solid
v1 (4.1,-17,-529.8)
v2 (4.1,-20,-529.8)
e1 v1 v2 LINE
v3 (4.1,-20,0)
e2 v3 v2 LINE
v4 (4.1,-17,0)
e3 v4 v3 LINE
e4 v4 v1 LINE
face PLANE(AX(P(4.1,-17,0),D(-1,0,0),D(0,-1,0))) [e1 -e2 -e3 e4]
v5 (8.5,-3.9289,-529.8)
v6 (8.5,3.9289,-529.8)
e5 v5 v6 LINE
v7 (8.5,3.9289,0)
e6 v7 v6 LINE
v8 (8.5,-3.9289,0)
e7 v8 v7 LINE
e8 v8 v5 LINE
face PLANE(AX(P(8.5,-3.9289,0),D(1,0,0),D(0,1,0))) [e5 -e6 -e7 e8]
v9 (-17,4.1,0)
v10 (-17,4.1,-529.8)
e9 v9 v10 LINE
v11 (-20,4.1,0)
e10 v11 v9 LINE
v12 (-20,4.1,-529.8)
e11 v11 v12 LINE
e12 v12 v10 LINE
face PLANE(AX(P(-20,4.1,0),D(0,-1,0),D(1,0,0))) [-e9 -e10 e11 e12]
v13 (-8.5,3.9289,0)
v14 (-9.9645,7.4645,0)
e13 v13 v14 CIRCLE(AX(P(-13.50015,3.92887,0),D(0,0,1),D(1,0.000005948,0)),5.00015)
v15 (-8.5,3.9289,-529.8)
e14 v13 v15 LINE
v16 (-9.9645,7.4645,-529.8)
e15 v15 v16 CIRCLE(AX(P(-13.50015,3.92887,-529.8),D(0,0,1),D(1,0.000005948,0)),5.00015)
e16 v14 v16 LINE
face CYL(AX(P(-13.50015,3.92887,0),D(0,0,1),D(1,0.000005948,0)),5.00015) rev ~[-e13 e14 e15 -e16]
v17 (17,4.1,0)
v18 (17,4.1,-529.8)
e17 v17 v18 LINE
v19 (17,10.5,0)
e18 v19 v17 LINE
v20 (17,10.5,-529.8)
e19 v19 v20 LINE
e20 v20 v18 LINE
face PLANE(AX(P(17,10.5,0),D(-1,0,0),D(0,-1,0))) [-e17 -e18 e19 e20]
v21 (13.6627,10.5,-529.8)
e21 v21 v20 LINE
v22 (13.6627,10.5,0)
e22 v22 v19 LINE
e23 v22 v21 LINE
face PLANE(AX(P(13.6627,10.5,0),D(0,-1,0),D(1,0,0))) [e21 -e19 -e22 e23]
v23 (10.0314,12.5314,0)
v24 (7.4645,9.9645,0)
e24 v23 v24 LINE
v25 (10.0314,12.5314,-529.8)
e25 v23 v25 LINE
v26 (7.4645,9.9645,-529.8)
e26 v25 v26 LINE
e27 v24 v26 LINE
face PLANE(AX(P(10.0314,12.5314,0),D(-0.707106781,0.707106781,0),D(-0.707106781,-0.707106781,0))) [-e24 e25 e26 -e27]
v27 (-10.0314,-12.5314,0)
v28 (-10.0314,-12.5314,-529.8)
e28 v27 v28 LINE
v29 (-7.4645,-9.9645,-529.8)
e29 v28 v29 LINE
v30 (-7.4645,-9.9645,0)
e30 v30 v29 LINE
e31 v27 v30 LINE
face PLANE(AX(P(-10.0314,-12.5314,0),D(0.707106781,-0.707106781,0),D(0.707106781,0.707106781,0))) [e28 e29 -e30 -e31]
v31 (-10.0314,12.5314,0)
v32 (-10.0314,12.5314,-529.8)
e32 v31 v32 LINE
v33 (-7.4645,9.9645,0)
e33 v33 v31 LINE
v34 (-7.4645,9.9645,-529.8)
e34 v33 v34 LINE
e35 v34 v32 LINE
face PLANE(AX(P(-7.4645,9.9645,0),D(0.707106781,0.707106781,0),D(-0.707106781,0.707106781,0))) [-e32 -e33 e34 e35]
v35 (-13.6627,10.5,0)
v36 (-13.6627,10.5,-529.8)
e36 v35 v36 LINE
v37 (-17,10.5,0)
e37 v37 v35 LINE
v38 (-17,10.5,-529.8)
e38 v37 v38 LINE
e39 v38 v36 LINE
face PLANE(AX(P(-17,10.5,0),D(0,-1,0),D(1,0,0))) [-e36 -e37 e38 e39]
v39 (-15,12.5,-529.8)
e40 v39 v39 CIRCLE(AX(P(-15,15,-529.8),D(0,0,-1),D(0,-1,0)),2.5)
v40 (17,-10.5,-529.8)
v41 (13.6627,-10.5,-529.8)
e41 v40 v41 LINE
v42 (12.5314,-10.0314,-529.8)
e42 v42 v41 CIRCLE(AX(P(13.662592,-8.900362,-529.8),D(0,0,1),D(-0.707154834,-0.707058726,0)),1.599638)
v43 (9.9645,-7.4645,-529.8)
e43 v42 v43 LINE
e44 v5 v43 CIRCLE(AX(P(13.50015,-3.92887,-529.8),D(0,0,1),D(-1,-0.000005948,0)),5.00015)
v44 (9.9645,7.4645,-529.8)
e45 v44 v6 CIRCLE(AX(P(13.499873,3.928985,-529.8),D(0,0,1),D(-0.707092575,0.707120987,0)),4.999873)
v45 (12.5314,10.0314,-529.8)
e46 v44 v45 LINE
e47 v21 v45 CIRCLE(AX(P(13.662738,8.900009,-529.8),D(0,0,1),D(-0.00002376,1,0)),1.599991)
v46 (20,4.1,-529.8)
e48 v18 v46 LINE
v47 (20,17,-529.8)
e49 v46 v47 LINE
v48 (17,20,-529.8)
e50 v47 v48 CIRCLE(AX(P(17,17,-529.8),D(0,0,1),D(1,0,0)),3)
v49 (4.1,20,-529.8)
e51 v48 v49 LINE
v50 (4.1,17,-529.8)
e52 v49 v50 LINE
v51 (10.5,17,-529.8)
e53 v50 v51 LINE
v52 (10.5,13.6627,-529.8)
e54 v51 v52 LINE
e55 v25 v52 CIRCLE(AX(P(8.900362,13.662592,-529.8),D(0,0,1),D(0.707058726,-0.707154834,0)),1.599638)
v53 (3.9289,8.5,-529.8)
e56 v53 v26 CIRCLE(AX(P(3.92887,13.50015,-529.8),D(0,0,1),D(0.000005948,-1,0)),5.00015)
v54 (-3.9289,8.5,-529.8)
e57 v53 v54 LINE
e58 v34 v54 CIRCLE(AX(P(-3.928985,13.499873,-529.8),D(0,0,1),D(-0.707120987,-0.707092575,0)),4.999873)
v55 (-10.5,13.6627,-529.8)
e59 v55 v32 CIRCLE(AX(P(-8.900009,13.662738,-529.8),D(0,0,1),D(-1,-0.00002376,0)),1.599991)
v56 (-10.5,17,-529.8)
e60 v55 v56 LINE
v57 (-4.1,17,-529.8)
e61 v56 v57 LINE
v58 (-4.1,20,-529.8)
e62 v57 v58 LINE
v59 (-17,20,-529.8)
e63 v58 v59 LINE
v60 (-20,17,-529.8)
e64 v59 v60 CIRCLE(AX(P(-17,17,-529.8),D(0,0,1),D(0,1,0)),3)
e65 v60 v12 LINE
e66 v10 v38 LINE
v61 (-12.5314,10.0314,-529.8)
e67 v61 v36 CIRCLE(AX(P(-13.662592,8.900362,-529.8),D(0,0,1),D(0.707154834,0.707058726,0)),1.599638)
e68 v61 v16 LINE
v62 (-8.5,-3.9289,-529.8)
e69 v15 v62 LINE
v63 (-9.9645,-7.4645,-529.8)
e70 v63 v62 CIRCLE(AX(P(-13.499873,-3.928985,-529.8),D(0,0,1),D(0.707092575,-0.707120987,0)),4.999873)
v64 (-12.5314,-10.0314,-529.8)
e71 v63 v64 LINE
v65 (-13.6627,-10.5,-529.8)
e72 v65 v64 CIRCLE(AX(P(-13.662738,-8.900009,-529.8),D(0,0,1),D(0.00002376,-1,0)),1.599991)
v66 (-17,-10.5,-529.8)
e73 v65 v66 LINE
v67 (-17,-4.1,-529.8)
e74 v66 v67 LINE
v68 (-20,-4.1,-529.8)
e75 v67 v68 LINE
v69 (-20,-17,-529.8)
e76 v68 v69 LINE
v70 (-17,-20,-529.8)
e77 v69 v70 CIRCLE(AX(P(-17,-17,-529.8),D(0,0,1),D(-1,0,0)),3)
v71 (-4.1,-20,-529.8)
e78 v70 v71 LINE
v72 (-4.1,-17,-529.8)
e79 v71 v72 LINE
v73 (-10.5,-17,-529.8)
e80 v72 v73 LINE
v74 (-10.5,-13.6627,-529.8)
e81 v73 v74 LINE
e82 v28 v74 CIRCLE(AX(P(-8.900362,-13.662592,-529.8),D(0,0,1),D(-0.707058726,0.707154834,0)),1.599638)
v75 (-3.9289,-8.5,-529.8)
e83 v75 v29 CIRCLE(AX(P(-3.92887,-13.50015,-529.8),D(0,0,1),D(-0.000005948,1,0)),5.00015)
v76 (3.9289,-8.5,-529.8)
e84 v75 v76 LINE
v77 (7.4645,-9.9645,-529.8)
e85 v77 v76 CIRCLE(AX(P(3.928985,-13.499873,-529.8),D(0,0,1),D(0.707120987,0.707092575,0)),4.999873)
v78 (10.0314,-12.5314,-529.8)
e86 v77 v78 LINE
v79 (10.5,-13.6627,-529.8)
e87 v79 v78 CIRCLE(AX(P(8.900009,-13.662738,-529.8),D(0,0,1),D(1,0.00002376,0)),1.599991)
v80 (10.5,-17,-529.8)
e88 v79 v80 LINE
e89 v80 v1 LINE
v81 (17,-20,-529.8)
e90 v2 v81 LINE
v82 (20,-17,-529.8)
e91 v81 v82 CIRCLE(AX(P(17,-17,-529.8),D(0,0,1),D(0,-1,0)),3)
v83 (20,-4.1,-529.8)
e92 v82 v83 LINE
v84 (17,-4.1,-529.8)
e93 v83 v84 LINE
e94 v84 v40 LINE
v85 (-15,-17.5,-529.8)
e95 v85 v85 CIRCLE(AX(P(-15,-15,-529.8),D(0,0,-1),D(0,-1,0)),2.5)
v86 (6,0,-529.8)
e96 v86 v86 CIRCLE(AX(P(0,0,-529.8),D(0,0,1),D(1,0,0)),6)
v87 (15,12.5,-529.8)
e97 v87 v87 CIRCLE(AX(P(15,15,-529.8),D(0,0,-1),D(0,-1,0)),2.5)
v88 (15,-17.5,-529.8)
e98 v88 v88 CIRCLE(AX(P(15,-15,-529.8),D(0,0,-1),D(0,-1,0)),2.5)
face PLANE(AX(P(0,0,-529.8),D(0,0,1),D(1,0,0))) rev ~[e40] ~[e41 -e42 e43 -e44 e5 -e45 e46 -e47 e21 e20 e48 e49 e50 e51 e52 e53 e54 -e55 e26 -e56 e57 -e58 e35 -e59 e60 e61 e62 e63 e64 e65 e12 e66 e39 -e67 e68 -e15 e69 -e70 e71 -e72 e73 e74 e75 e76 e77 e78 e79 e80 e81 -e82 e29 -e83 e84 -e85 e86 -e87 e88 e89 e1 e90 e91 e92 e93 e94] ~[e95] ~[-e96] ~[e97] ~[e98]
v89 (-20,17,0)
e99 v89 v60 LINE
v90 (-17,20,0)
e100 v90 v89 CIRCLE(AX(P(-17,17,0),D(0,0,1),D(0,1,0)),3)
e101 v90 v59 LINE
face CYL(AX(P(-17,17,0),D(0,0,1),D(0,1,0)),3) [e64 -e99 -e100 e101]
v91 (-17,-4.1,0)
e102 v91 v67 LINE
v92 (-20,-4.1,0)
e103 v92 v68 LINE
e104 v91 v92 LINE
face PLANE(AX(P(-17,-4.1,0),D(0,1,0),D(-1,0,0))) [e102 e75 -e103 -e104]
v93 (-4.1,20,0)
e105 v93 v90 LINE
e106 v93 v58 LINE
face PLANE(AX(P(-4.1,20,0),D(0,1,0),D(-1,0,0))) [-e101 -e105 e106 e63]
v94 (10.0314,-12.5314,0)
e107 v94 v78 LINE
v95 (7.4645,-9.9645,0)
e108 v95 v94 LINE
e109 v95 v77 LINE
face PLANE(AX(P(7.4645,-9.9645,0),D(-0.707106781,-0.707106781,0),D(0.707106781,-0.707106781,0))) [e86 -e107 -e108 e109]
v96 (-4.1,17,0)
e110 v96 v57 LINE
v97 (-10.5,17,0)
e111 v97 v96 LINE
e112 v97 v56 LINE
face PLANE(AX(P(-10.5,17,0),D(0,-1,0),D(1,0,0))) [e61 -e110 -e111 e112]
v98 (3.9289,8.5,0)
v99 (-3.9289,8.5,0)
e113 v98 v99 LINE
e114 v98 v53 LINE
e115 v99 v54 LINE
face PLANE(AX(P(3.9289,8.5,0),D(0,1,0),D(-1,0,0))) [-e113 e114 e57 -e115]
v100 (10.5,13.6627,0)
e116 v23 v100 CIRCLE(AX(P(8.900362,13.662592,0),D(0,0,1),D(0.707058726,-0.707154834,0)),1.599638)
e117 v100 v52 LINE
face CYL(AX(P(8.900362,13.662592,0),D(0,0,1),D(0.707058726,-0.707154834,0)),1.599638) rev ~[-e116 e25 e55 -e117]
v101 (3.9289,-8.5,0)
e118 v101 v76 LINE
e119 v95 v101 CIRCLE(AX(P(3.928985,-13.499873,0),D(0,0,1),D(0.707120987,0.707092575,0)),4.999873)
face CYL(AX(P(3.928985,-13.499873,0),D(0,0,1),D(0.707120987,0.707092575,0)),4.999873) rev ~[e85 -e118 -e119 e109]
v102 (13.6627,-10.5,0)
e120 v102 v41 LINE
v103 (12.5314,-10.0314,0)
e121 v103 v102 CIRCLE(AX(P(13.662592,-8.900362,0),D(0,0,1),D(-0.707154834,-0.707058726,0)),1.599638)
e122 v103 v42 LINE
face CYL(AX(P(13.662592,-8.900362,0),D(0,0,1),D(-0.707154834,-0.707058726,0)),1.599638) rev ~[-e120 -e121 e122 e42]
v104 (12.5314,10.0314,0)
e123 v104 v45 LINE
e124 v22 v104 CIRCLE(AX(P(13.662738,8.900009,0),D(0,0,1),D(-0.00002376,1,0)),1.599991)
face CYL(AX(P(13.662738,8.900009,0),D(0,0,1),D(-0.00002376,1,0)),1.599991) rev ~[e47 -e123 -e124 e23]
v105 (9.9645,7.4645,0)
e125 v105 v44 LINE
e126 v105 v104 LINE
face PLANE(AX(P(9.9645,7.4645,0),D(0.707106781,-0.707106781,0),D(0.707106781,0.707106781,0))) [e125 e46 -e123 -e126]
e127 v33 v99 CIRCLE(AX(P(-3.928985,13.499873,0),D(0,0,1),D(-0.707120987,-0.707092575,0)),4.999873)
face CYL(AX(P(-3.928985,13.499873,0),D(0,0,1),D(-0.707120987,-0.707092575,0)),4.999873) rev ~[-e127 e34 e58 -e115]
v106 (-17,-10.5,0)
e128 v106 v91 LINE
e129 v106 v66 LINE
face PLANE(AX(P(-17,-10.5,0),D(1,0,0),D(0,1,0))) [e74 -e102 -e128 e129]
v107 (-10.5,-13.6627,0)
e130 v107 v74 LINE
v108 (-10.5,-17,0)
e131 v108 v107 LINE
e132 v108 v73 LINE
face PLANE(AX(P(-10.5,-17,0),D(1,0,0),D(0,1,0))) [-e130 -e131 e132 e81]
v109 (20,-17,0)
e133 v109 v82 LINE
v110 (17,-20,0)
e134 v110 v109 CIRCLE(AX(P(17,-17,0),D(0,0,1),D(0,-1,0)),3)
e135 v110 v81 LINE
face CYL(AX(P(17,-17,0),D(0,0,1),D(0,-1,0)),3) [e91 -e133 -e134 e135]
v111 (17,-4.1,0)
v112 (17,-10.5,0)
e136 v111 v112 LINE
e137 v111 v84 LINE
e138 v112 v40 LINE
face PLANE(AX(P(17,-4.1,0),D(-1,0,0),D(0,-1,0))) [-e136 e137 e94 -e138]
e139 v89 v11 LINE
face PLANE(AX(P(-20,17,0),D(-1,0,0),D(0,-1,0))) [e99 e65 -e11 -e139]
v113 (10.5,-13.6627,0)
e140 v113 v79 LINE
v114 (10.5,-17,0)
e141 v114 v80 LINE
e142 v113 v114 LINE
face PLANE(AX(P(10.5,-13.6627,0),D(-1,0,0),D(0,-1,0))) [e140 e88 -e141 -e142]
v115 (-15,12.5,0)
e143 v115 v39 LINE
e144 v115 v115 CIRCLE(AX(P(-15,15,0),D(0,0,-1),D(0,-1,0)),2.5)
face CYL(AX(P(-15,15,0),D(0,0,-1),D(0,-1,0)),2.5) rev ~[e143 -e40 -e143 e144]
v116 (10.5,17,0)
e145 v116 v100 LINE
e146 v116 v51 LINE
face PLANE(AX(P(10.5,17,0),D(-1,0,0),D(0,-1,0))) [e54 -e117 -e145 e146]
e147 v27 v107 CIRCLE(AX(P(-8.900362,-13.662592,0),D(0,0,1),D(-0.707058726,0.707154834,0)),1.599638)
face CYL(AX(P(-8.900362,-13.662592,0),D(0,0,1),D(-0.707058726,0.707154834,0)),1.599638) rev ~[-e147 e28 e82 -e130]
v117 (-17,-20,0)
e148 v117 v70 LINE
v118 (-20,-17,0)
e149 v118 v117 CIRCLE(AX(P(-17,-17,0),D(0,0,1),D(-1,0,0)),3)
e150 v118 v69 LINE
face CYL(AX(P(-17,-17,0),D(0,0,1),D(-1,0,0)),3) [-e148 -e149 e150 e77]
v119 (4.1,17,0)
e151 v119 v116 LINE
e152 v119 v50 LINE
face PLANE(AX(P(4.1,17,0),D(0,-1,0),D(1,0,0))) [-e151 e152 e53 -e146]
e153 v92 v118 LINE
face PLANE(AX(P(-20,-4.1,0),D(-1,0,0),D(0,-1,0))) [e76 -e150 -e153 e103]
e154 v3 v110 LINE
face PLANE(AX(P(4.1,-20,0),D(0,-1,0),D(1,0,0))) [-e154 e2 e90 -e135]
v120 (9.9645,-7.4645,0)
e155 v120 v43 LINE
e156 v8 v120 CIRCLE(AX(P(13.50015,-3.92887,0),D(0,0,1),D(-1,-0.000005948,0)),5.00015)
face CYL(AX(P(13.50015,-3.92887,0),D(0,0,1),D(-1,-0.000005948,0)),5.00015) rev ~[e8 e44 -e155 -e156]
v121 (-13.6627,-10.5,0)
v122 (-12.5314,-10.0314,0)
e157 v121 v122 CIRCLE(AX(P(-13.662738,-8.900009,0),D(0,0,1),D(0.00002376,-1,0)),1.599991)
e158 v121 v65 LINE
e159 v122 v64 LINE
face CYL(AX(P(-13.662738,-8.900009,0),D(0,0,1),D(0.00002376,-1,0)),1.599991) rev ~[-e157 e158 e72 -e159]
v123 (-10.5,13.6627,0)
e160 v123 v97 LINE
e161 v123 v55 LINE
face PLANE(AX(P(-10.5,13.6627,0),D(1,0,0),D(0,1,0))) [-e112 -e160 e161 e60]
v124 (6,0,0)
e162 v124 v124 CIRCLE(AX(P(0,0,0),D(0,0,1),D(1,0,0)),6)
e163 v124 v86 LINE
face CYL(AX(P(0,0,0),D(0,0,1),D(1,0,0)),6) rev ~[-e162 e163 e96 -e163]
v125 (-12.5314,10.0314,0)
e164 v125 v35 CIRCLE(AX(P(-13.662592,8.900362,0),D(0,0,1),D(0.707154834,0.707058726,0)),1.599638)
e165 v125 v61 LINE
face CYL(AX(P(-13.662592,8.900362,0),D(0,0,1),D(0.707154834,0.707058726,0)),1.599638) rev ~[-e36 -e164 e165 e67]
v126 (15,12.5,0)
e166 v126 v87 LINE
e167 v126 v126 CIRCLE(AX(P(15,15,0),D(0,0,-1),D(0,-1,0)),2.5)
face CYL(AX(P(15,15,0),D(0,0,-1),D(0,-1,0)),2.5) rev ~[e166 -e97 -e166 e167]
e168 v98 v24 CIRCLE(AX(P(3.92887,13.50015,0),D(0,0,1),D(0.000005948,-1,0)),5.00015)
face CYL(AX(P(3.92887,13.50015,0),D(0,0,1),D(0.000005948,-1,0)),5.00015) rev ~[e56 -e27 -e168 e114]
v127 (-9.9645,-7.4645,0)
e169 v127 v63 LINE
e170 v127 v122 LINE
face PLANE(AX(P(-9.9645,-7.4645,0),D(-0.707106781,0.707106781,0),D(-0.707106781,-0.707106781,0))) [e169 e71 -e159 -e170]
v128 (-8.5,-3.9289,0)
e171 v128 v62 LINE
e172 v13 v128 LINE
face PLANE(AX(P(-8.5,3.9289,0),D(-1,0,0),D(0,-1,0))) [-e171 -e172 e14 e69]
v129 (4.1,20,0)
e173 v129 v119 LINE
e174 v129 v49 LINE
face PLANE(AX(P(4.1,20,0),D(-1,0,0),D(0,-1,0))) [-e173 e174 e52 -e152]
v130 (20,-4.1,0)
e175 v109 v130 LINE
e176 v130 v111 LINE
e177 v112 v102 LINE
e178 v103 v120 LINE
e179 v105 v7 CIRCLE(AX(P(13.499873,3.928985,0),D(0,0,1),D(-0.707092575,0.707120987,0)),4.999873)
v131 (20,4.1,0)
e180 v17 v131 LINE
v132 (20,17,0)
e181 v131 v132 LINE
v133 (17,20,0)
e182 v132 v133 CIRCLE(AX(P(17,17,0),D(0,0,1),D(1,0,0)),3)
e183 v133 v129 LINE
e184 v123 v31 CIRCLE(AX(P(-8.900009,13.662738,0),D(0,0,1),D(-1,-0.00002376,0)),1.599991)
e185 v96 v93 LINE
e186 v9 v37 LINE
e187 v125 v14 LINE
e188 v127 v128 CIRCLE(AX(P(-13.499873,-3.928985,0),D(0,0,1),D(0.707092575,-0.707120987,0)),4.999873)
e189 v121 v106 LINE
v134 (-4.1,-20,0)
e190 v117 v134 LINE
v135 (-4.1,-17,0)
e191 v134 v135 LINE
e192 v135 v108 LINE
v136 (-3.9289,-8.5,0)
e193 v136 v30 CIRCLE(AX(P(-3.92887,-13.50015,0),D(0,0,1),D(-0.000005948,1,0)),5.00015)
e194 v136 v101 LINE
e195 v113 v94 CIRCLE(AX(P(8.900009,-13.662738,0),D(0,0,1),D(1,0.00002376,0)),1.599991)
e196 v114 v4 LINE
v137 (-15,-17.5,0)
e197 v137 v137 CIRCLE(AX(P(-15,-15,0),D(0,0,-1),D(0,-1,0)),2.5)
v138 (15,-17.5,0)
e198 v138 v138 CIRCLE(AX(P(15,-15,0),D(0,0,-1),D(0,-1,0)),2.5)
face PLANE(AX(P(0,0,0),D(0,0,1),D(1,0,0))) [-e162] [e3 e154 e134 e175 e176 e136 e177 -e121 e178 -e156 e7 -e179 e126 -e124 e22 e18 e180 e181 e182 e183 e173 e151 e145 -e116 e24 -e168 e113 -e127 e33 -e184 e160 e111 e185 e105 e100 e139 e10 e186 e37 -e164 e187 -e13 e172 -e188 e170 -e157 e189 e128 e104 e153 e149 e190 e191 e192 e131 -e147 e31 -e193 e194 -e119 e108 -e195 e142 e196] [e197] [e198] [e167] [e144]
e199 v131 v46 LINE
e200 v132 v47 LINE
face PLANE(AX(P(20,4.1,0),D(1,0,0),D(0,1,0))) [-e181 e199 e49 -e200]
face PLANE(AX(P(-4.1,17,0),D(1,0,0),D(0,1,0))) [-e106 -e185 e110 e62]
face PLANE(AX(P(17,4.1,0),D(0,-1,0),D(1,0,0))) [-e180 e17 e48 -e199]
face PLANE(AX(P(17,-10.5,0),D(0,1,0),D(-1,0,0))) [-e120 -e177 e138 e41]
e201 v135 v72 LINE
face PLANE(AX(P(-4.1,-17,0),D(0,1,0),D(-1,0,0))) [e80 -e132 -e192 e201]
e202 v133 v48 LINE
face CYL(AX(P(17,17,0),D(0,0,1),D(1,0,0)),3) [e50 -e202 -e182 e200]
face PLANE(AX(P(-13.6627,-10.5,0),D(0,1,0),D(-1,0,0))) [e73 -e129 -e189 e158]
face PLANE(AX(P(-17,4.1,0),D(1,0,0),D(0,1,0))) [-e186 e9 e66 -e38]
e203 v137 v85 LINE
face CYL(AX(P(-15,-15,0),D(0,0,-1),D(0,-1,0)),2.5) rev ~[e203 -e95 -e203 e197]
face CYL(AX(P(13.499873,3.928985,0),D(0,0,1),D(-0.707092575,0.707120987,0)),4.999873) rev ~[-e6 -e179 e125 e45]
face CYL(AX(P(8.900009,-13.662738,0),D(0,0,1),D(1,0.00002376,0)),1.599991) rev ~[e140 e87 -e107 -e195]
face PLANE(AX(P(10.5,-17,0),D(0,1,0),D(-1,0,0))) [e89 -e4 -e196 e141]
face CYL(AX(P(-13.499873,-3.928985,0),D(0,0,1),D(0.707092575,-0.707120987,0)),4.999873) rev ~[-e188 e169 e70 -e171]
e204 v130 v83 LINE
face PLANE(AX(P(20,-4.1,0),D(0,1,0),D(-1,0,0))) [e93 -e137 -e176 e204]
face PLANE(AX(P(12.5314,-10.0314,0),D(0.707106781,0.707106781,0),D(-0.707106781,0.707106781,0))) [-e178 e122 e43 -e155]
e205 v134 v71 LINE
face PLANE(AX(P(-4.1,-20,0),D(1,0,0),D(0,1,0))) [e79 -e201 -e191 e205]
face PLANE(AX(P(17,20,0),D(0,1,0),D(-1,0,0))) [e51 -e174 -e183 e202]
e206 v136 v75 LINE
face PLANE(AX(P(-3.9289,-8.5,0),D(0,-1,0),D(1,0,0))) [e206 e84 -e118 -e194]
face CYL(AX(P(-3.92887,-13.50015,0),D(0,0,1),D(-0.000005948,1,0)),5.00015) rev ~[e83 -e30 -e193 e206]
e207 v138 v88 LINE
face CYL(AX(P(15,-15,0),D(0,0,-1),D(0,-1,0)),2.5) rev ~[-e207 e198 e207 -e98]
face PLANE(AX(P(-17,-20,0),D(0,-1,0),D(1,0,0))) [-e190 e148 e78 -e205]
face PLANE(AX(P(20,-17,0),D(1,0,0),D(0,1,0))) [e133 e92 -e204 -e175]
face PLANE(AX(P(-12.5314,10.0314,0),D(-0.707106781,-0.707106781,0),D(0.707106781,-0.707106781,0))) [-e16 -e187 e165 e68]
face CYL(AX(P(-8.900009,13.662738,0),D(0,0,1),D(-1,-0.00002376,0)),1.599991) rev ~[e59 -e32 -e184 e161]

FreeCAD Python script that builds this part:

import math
import FreeCAD as App
import Part
import Sketcher

V = App.Vector
Q = App.Units.Quantity

doc = App.newDocument("Part")
params = doc.addObject("Spreadsheet::Sheet", "Params")
for row, (alias, value) in enumerate([
    ("sketch1_diameter", "12 mm"),
    ("sketch1_radius", "3 mm"),
    ("sketch1_radius2", "5 mm"),
    ("sketch1_width", "12.9 mm"),
    ("sketch1_width2", "6.4 mm"),
    ("pad1_length", "529.8 mm"),
    ("sketch2_diameter", "5 mm"),
    ("hole_diameter", "5 mm"),
    ("hole_depth", "6000 mm"),
    ("sketch3_diameter", "5 mm"),
    ("hole2_diameter", "5 mm"),
    ("hole2_depth", "6000 mm"),
    ("sketch4_diameter", "5 mm"),
    ("hole3_diameter", "5 mm"),
    ("hole3_depth", "6000 mm"),
    ("sketch5_diameter", "5 mm"),
    ("hole4_diameter", "5 mm"),
    ("hole4_depth", "6000 mm"),
], start=1):
    params.set(f"A{row}", alias)
    params.set(f"B{row}", "=" + value)
    params.setAlias(f"B{row}", alias)

body = doc.addObject("PartDesign::Body", "Body")

# Sketch on XY plane
sketch1 = body.newObject("Sketcher::SketchObject", "Sketch")
sketch1.AttachmentSupport = (doc.getObject("XY_Plane"), [""])
sketch1.MapMode = "FlatFace"
sketch1.addGeometry(Part.LineSegment(V(-20, -4.1, 0), V(-20, -17, 0)), False)
sketch1.addGeometry(Part.ArcOfCircle(Part.Circle(V(-17, -17, 0), V(0, 0, 1), 3), math.radians(180), math.radians(270)), False)
sketch1.addGeometry(Part.LineSegment(V(-17, -20, 0), V(-4.1, -20, 0)), False)
sketch1.addGeometry(Part.LineSegment(V(-4.1, -20, 0), V(-4.1, -17, 0)), False)
sketch1.addGeometry(Part.LineSegment(V(-4.1, -17, 0), V(-10.5, -17, 0)), False)
sketch1.addGeometry(Part.LineSegment(V(-10.5, -17, 0), V(-10.5, -13.7, 0)), False)
sketch1.addGeometry(Part.ArcOfCircle(Part.Circle(V(-8.9, -13.7, 0), V(0, 0, 1), 1.6), math.radians(135), math.radians(180)), False)
sketch1.addGeometry(Part.LineSegment(V(-10, -12.5, 0), V(-7.5, -10, 0)), False)
sketch1.addGeometry(Part.ArcOfCircle(Part.Circle(V(-3.9, -13.5, 0), V(0, 0, 1), 5), math.radians(90), math.radians(135)), False)
sketch1.addGeometry(Part.LineSegment(V(-3.9, -8.5, 0), V(3.9, -8.5, 0)), False)
sketch1.addGeometry(Part.ArcOfCircle(Part.Circle(V(3.9, -13.5, 0), V(0, 0, 1), 5), math.radians(45), math.radians(90)), False)
sketch1.addGeometry(Part.LineSegment(V(7.5, -10, 0), V(10, -12.5, 0)), False)
sketch1.addGeometry(Part.ArcOfCircle(Part.Circle(V(8.9, -13.7, 0), V(0, 0, 1), 1.6), math.radians(0), math.radians(45)), False)
sketch1.addGeometry(Part.LineSegment(V(10.5, -13.7, 0), V(10.5, -17, 0)), False)
sketch1.addGeometry(Part.LineSegment(V(10.5, -17, 0), V(4.1, -17, 0)), False)
sketch1.addGeometry(Part.LineSegment(V(4.1, -17, 0), V(4.1, -20, 0)), False)
sketch1.addGeometry(Part.LineSegment(V(4.1, -20, 0), V(17, -20, 0)), False)
sketch1.addGeometry(Part.ArcOfCircle(Part.Circle(V(17, -17, 0), V(0, 0, 1), 3), math.radians(-90), math.radians(0)), False)
sketch1.addGeometry(Part.LineSegment(V(20, -17, 0), V(20, -4.1, 0)), False)
sketch1.addGeometry(Part.LineSegment(V(20, -4.1, 0), V(17, -4.1, 0)), False)
sketch1.addGeometry(Part.LineSegment(V(17, -4.1, 0), V(17, -10.5, 0)), False)
sketch1.addGeometry(Part.LineSegment(V(17, -10.5, 0), V(13.7, -10.5, 0)), False)
sketch1.addGeometry(Part.ArcOfCircle(Part.Circle(V(13.7, -8.9, 0), V(0, 0, 1), 1.6), math.radians(-135), math.radians(-90)), False)
sketch1.addGeometry(Part.LineSegment(V(12.5, -10, 0), V(10, -7.5, 0)), False)
sketch1.addGeometry(Part.ArcOfCircle(Part.Circle(V(13.5, -3.9, 0), V(0, 0, 1), 5), math.radians(180), math.radians(225)), False)
sketch1.addGeometry(Part.LineSegment(V(8.5, -3.9, 0), V(8.5, 3.9, 0)), False)
sketch1.addGeometry(Part.ArcOfCircle(Part.Circle(V(13.5, 3.9, 0), V(0, 0, 1), 5), math.radians(135), math.radians(180)), False)
sketch1.addGeometry(Part.LineSegment(V(10, 7.5, 0), V(12.5, 10, 0)), False)
sketch1.addGeometry(Part.ArcOfCircle(Part.Circle(V(13.7, 8.9, 0), V(0, 0, 1), 1.6), math.radians(90), math.radians(135)), False)
sketch1.addGeometry(Part.LineSegment(V(13.7, 10.5, 0), V(17, 10.5, 0)), False)
sketch1.addGeometry(Part.LineSegment(V(17, 10.5, 0), V(17, 4.1, 0)), False)
sketch1.addGeometry(Part.LineSegment(V(17, 4.1, 0), V(20, 4.1, 0)), False)
sketch1.addGeometry(Part.LineSegment(V(20, 4.1, 0), V(20, 17, 0)), False)
sketch1.addGeometry(Part.ArcOfCircle(Part.Circle(V(17, 17, 0), V(0, 0, 1), 3), math.radians(0), math.radians(90)), False)
sketch1.addGeometry(Part.LineSegment(V(17, 20, 0), V(4.1, 20, 0)), False)
sketch1.addGeometry(Part.LineSegment(V(4.1, 20, 0), V(4.1, 17, 0)), False)
sketch1.addGeometry(Part.LineSegment(V(4.1, 17, 0), V(10.5, 17, 0)), False)
sketch1.addGeometry(Part.LineSegment(V(10.5, 17, 0), V(10.5, 13.7, 0)), False)
sketch1.addGeometry(Part.ArcOfCircle(Part.Circle(V(8.9, 13.7, 0), V(0, 0, 1), 1.6), math.radians(-45), math.radians(0)), False)
sketch1.addGeometry(Part.LineSegment(V(10, 12.5, 0), V(7.5, 10, 0)), False)
sketch1.addGeometry(Part.ArcOfCircle(Part.Circle(V(3.9, 13.5, 0), V(0, 0, 1), 5), math.radians(-90), math.radians(-45)), False)
sketch1.addGeometry(Part.LineSegment(V(3.9, 8.5, 0), V(-3.9, 8.5, 0)), False)
sketch1.addGeometry(Part.ArcOfCircle(Part.Circle(V(-3.9, 13.5, 0), V(0, 0, 1), 5), math.radians(-135), math.radians(-90)), False)
sketch1.addGeometry(Part.LineSegment(V(-7.5, 10, 0), V(-10, 12.5, 0)), False)
sketch1.addGeometry(Part.ArcOfCircle(Part.Circle(V(-8.9, 13.7, 0), V(0, 0, 1), 1.6), math.radians(180), math.radians(225)), False)
sketch1.addGeometry(Part.LineSegment(V(-10.5, 13.7, 0), V(-10.5, 17, 0)), False)
sketch1.addGeometry(Part.LineSegment(V(-10.5, 17, 0), V(-4.1, 17, 0)), False)
sketch1.addGeometry(Part.LineSegment(V(-4.1, 17, 0), V(-4.1, 20, 0)), False)
sketch1.addGeometry(Part.LineSegment(V(-4.1, 20, 0), V(-17, 20, 0)), False)
sketch1.addGeometry(Part.ArcOfCircle(Part.Circle(V(-17, 17, 0), V(0, 0, 1), 3), math.radians(90), math.radians(180)), False)
sketch1.addGeometry(Part.LineSegment(V(-20, 17, 0), V(-20, 4.1, 0)), False)
sketch1.addGeometry(Part.LineSegment(V(-20, 4.1, 0), V(-17, 4.1, 0)), False)
sketch1.addGeometry(Part.LineSegment(V(-17, 4.1, 0), V(-17, 10.5, 0)), False)
sketch1.addGeometry(Part.LineSegment(V(-17, 10.5, 0), V(-13.7, 10.5, 0)), False)
sketch1.addGeometry(Part.ArcOfCircle(Part.Circle(V(-13.7, 8.9, 0), V(0, 0, 1), 1.6), math.radians(45), math.radians(90)), False)
sketch1.addGeometry(Part.LineSegment(V(-12.5, 10, 0), V(-10, 7.5, 0)), False)
sketch1.addGeometry(Part.ArcOfCircle(Part.Circle(V(-13.5, 3.9, 0), V(0, 0, 1), 5), math.radians(0), math.radians(45)), False)
sketch1.addGeometry(Part.LineSegment(V(-8.5, 3.9, 0), V(-8.5, -3.9, 0)), False)
sketch1.addGeometry(Part.ArcOfCircle(Part.Circle(V(-13.5, -3.9, 0), V(0, 0, 1), 5), math.radians(-45), math.radians(0)), False)
sketch1.addGeometry(Part.LineSegment(V(-10, -7.5, 0), V(-12.5, -10, 0)), False)
sketch1.addGeometry(Part.ArcOfCircle(Part.Circle(V(-13.7, -8.9, 0), V(0, 0, 1), 1.6), math.radians(-90), math.radians(-45)), False)
sketch1.addGeometry(Part.LineSegment(V(-13.7, -10.5, 0), V(-17, -10.5, 0)), False)
sketch1.addGeometry(Part.LineSegment(V(-17, -10.5, 0), V(-17, -4.1, 0)), False)
sketch1.addGeometry(Part.LineSegment(V(-17, -4.1, 0), V(-20, -4.1, 0)), False)
sketch1.addGeometry(Part.Circle(V(0, 0, 0), V(0, 0, 1), 6), False)
sketch1.addConstraint(Sketcher.Constraint("Tangent", 0, 2, 1, 1))
sketch1.addConstraint(Sketcher.Constraint("Tangent", 1, 2, 2, 1))
sketch1.addConstraint(Sketcher.Constraint("Coincident", 2, 2, 3, 1))
sketch1.addConstraint(Sketcher.Constraint("Coincident", 3, 2, 4, 1))
sketch1.addConstraint(Sketcher.Constraint("Coincident", 4, 2, 5, 1))
sketch1.addConstraint(Sketcher.Constraint("Tangent", 5, 2, 6, 2))
sketch1.addConstraint(Sketcher.Constraint("Tangent", 6, 1, 7, 1))
sketch1.addConstraint(Sketcher.Constraint("Tangent", 7, 2, 8, 2))
sketch1.addConstraint(Sketcher.Constraint("Tangent", 8, 1, 9, 1))
sketch1.addConstraint(Sketcher.Constraint("Tangent", 9, 2, 10, 2))
sketch1.addConstraint(Sketcher.Constraint("Tangent", 10, 1, 11, 1))
sketch1.addConstraint(Sketcher.Constraint("Tangent", 11, 2, 12, 2))
sketch1.addConstraint(Sketcher.Constraint("Tangent", 12, 1, 13, 1))
sketch1.addConstraint(Sketcher.Constraint("Coincident", 13, 2, 14, 1))
sketch1.addConstraint(Sketcher.Constraint("Coincident", 14, 2, 15, 1))
sketch1.addConstraint(Sketcher.Constraint("Coincident", 15, 2, 16, 1))
sketch1.addConstraint(Sketcher.Constraint("Tangent", 16, 2, 17, 1))
sketch1.addConstraint(Sketcher.Constraint("Tangent", 17, 2, 18, 1))
sketch1.addConstraint(Sketcher.Constraint("Coincident", 18, 2, 19, 1))
sketch1.addConstraint(Sketcher.Constraint("Coincident", 19, 2, 20, 1))
sketch1.addConstraint(Sketcher.Constraint("Coincident", 20, 2, 21, 1))
sketch1.addConstraint(Sketcher.Constraint("Tangent", 21, 2, 22, 2))
sketch1.addConstraint(Sketcher.Constraint("Tangent", 22, 1, 23, 1))
sketch1.addConstraint(Sketcher.Constraint("Tangent", 23, 2, 24, 2))
sketch1.addConstraint(Sketcher.Constraint("Tangent", 24, 1, 25, 1))
sketch1.addConstraint(Sketcher.Constraint("Tangent", 25, 2, 26, 2))
sketch1.addConstraint(Sketcher.Constraint("Tangent", 26, 1, 27, 1))
sketch1.addConstraint(Sketcher.Constraint("Tangent", 27, 2, 28, 2))
sketch1.addConstraint(Sketcher.Constraint("Tangent", 28, 1, 29, 1))
sketch1.addConstraint(Sketcher.Constraint("Coincident", 29, 2, 30, 1))
sketch1.addConstraint(Sketcher.Constraint("Coincident", 30, 2, 31, 1))
sketch1.addConstraint(Sketcher.Constraint("Coincident", 31, 2, 32, 1))
sketch1.addConstraint(Sketcher.Constraint("Tangent", 32, 2, 33, 1))
sketch1.addConstraint(Sketcher.Constraint("Tangent", 33, 2, 34, 1))
sketch1.addConstraint(Sketcher.Constraint("Coincident", 34, 2, 35, 1))
sketch1.addConstraint(Sketcher.Constraint("Coincident", 35, 2, 36, 1))
sketch1.addConstraint(Sketcher.Constraint("Coincident", 36, 2, 37, 1))
sketch1.addConstraint(Sketcher.Constraint("Tangent", 37, 2, 38, 2))
sketch1.addConstraint(Sketcher.Constraint("Tangent", 38, 1, 39, 1))
sketch1.addConstraint(Sketcher.Constraint("Tangent", 39, 2, 40, 2))
sketch1.addConstraint(Sketcher.Constraint("Tangent", 40, 1, 41, 1))
sketch1.addConstraint(Sketcher.Constraint("Tangent", 41, 2, 42, 2))
sketch1.addConstraint(Sketcher.Constraint("Tangent", 42, 1, 43, 1))
sketch1.addConstraint(Sketcher.Constraint("Tangent", 43, 2, 44, 2))
sketch1.addConstraint(Sketcher.Constraint("Tangent", 44, 1, 45, 1))
sketch1.addConstraint(Sketcher.Constraint("Coincident", 45, 2, 46, 1))
sketch1.addConstraint(Sketcher.Constraint("Coincident", 46, 2, 47, 1))
sketch1.addConstraint(Sketcher.Constraint("Coincident", 47, 2, 48, 1))
sketch1.addConstraint(Sketcher.Constraint("Tangent", 48, 2, 49, 1))
sketch1.addConstraint(Sketcher.Constraint("Tangent", 49, 2, 50, 1))
sketch1.addConstraint(Sketcher.Constraint("Coincident", 50, 2, 51, 1))
sketch1.addConstraint(Sketcher.Constraint("Coincident", 51, 2, 52, 1))
sketch1.addConstraint(Sketcher.Constraint("Coincident", 52, 2, 53, 1))
sketch1.addConstraint(Sketcher.Constraint("Tangent", 53, 2, 54, 2))
sketch1.addConstraint(Sketcher.Constraint("Tangent", 54, 1, 55, 1))
sketch1.addConstraint(Sketcher.Constraint("Tangent", 55, 2, 56, 2))
sketch1.addConstraint(Sketcher.Constraint("Tangent", 56, 1, 57, 1))
sketch1.addConstraint(Sketcher.Constraint("Tangent", 57, 2, 58, 2))
sketch1.addConstraint(Sketcher.Constraint("Tangent", 58, 1, 59, 1))
sketch1.addConstraint(Sketcher.Constraint("Tangent", 59, 2, 60, 2))
sketch1.addConstraint(Sketcher.Constraint("Tangent", 60, 1, 61, 1))
sketch1.addConstraint(Sketcher.Constraint("Coincident", 61, 2, 62, 1))
sketch1.addConstraint(Sketcher.Constraint("Coincident", 62, 2, 63, 1))
sketch1.addConstraint(Sketcher.Constraint("Coincident", 63, 2, 0, 1))
sketch1.addConstraint(Sketcher.Constraint("Vertical", 0))
sketch1.addConstraint(Sketcher.Constraint("Horizontal", 2))
sketch1.addConstraint(Sketcher.Constraint("Vertical", 3))
sketch1.addConstraint(Sketcher.Constraint("Horizontal", 4))
sketch1.addConstraint(Sketcher.Constraint("Vertical", 5))
sketch1.addConstraint(Sketcher.Constraint("Horizontal", 9))
sketch1.addConstraint(Sketcher.Constraint("Vertical", 13))
sketch1.addConstraint(Sketcher.Constraint("Horizontal", 14))
sketch1.addConstraint(Sketcher.Constraint("Vertical", 15))
sketch1.addConstraint(Sketcher.Constraint("Horizontal", 16))
sketch1.addConstraint(Sketcher.Constraint("Vertical", 18))
sketch1.addConstraint(Sketcher.Constraint("Horizontal", 19))
sketch1.addConstraint(Sketcher.Constraint("Vertical", 20))
sketch1.addConstraint(Sketcher.Constraint("Horizontal", 21))
sketch1.addConstraint(Sketcher.Constraint("Vertical", 25))
sketch1.addConstraint(Sketcher.Constraint("Horizontal", 29))
sketch1.addConstraint(Sketcher.Constraint("Vertical", 30))
sketch1.addConstraint(Sketcher.Constraint("Horizontal", 31))
sketch1.addConstraint(Sketcher.Constraint("Vertical", 32))
sketch1.addConstraint(Sketcher.Constraint("Horizontal", 34))
sketch1.addConstraint(Sketcher.Constraint("Vertical", 35))
sketch1.addConstraint(Sketcher.Constraint("Horizontal", 36))
sketch1.addConstraint(Sketcher.Constraint("Vertical", 37))
sketch1.addConstraint(Sketcher.Constraint("Horizontal", 41))
sketch1.addConstraint(Sketcher.Constraint("Vertical", 45))
sketch1.addConstraint(Sketcher.Constraint("Horizontal", 46))
sketch1.addConstraint(Sketcher.Constraint("Vertical", 47))
sketch1.addConstraint(Sketcher.Constraint("Horizontal", 48))
sketch1.addConstraint(Sketcher.Constraint("Vertical", 50))
sketch1.addConstraint(Sketcher.Constraint("Horizontal", 51))
sketch1.addConstraint(Sketcher.Constraint("Vertical", 52))
sketch1.addConstraint(Sketcher.Constraint("Horizontal", 53))
sketch1.addConstraint(Sketcher.Constraint("Vertical", 57))
sketch1.addConstraint(Sketcher.Constraint("Horizontal", 61))
sketch1.addConstraint(Sketcher.Constraint("Vertical", 62))
sketch1.addConstraint(Sketcher.Constraint("Horizontal", 63))
sketch1.addConstraint(Sketcher.Constraint("Coincident", 64, 3, -1, 1))
sketch1.addConstraint(Sketcher.Constraint("Equal", 8, 10))
sketch1.addConstraint(Sketcher.Constraint("Equal", 6, 12))
sketch1.addConstraint(Sketcher.Constraint("Equal", 1, 17))
sketch1.addConstraint(Sketcher.Constraint("Equal", 12, 22))
sketch1.addConstraint(Sketcher.Constraint("Equal", 10, 24))
sketch1.addConstraint(Sketcher.Constraint("Equal", 24, 26))
sketch1.addConstraint(Sketcher.Constraint("Equal", 22, 28))
sketch1.addConstraint(Sketcher.Constraint("Equal", 17, 33))
sketch1.addConstraint(Sketcher.Constraint("Equal", 28, 38))
sketch1.addConstraint(Sketcher.Constraint("Equal", 26, 40))
sketch1.addConstraint(Sketcher.Constraint("Equal", 40, 42))
sketch1.addConstraint(Sketcher.Constraint("Equal", 38, 44))
sketch1.addConstraint(Sketcher.Constraint("Equal", 33, 49))
sketch1.addConstraint(Sketcher.Constraint("Equal", 44, 54))
sketch1.addConstraint(Sketcher.Constraint("Equal", 42, 56))
sketch1.addConstraint(Sketcher.Constraint("Equal", 56, 58))
sketch1.addConstraint(Sketcher.Constraint("Equal", 54, 60))
sketch1.addConstraint(Sketcher.Constraint("Symmetric", 1, 3, 33, 3, -1, 1))
sketch1.addConstraint(Sketcher.Constraint("Symmetric", 6, 3, 38, 3, -1, 1))
sketch1.addConstraint(Sketcher.Constraint("Symmetric", 8, 3, 40, 3, -1, 1))
sketch1.addConstraint(Sketcher.Constraint("Symmetric", 12, 3, 44, 3, -1, 1))
sketch1.addConstraint(Sketcher.Constraint("Symmetric", 17, 3, 49, 3, -1, 1))
sketch1.addConstraint(Sketcher.Constraint("Symmetric", 22, 3, 54, 3, -1, 1))
sketch1.addConstraint(Sketcher.Constraint("Symmetric", 24, 3, 56, 3, -1, 1))
sketch1.addConstraint(Sketcher.Constraint("Symmetric", 28, 3, 60, 3, -1, 1))
sketch1.addConstraint(Sketcher.Constraint("Symmetric", 3, 2, 35, 2, -1, 1))
sketch1.addConstraint(Sketcher.Constraint("Symmetric", 14, 2, 46, 2, -1, 1))
sketch1.addConstraint(Sketcher.Constraint("Symmetric", 19, 2, 51, 2, -1, 1))
sketch1.addConstraint(Sketcher.Constraint("Symmetric", 30, 2, 62, 2, -1, 1))
sketch1.addConstraint(Sketcher.Constraint("Symmetric", 6, 3, 12, 3, -2))
sketch1.addConstraint(Sketcher.Constraint("Symmetric", 1, 3, 17, 3, -2))
sketch1.addConstraint(Sketcher.Constraint("Symmetric", 28, 3, 54, 3, -2))
sketch1.addConstraint(Sketcher.Constraint("Symmetric", 3, 2, 14, 2, -2))
sketch1.addConstraint(Sketcher.Constraint("Symmetric", 30, 2, 51, 2, -2))
sketch1.addConstraint(Sketcher.Constraint("Perpendicular", 7, 11))
sketch1.addConstraint(Sketcher.Constraint("Parallel", 11, 23))
sketch1.addConstraint(Sketcher.Constraint("Perpendicular", 23, 27))
sketch1.addConstraint(Sketcher.Constraint("Perpendicular", 39, 43))
sketch1.addConstraint(Sketcher.Constraint("Perpendicular", 55, 59))
sketch1.addConstraint(Sketcher.Constraint("Horizontal", 26, 3, 56, 3))
sketch1.addConstraint(Sketcher.Constraint("Horizontal", 0, 2, 3, 2))
sketch1.addConstraint(Sketcher.Constraint("Vertical", 16, 2, 19, 2))
sketch1.addConstraint(Sketcher.Constraint("Equal", 48, 0))
sketch1.addConstraint(Sketcher.Constraint("Equal", 61, 5))
sketch1.addConstraint(Sketcher.Constraint("Equal", 46, 20))
sketch1.addConstraint(Sketcher.Constraint("Equal", 41, 25))
sketch1.addConstraint(Sketcher.Constraint("Equal", 11, 23))
sketch1.addConstraint(Sketcher.Constraint("Diameter", 64, Q("12 mm")))
sketch1.addConstraint(Sketcher.Constraint("Radius", 1, Q("3 mm")))
sketch1.addConstraint(Sketcher.Constraint("Radius", 8, Q("5 mm")))
sketch1.addConstraint(Sketcher.Constraint("DistanceX", 2, 1, 2, 2, Q("12.9 mm")))
sketch1.addConstraint(Sketcher.Constraint("DistanceX", 4, 2, 4, 1, Q("6.4 mm")))
sketch1.addConstraint(Sketcher.Constraint("DistanceX", 1, 3, -1, 1, Q("17 mm")))
sketch1.addConstraint(Sketcher.Constraint("DistanceY", 8, 3, -1, 1, Q("13.5 mm")))
sketch1.addConstraint(Sketcher.Constraint("Radius", 6, Q("1.5998 mm")))
sketch1.addConstraint(Sketcher.Constraint("DistanceX", 9, 1, 9, 2, Q("7.8578 mm")))
sketch1.setExpression("Constraints[148]", "Params.sketch1_diameter")
sketch1.setExpression("Constraints[149]", "Params.sketch1_radius")
sketch1.setExpression("Constraints[150]", "Params.sketch1_radius2")
sketch1.setExpression("Constraints[151]", "Params.sketch1_width")
sketch1.setExpression("Constraints[152]", "Params.sketch1_width2")
pad1 = body.newObject("PartDesign::Pad", "Pad")
pad1.Profile = sketch1
pad1.setExpression("Length", "Params.pad1_length")
pad1.Reversed = True

# Sketch on XY plane
sketch2 = body.newObject("Sketcher::SketchObject", "Sketch001")
sketch2.AttachmentSupport = (doc.getObject("XY_Plane"), [""])
sketch2.MapMode = "FlatFace"
sketch2.addGeometry(Part.Circle(V(-15, -15, 0), V(0, 0, 1), 2.5), False)
sketch2.addConstraint(Sketcher.Constraint("Diameter", 0, Q("5 mm")))
sketch2.addConstraint(Sketcher.Constraint("DistanceX", 0, 3, -1, 1, Q("15 mm")))
sketch2.addConstraint(Sketcher.Constraint("DistanceY", 0, 3, -1, 1, Q("15 mm")))
sketch2.setExpression("Constraints[0]", "Params.sketch2_diameter")
doc.recompute()
hole = body.newObject("PartDesign::Hole", "Hole")
hole.Profile = sketch2
hole.ThreadType = "None"
hole.setExpression("Diameter", "Params.hole_diameter")
hole.DepthType = "Dimension"
hole.setExpression("Depth", "Params.hole_depth")
hole.DrillPoint = "Flat"

# Sketch on XY plane
sketch3 = body.newObject("Sketcher::SketchObject", "Sketch002")
sketch3.AttachmentSupport = (doc.getObject("XY_Plane"), [""])
sketch3.MapMode = "FlatFace"
sketch3.addGeometry(Part.Circle(V(15, -15, 0), V(0, 0, 1), 2.5), False)
sketch3.addConstraint(Sketcher.Constraint("Diameter", 0, Q("5 mm")))
sketch3.addConstraint(Sketcher.Constraint("DistanceX", -1, 1, 0, 3, Q("15 mm")))
sketch3.addConstraint(Sketcher.Constraint("DistanceY", 0, 3, -1, 1, Q("15 mm")))
sketch3.setExpression("Constraints[0]", "Params.sketch3_diameter")
doc.recompute()
hole2 = body.newObject("PartDesign::Hole", "Hole001")
hole2.Profile = sketch3
hole2.ThreadType = "None"
hole2.setExpression("Diameter", "Params.hole2_diameter")
hole2.DepthType = "Dimension"
hole2.setExpression("Depth", "Params.hole2_depth")
hole2.DrillPoint = "Flat"

# Sketch on XY plane
sketch4 = body.newObject("Sketcher::SketchObject", "Sketch003")
sketch4.AttachmentSupport = (doc.getObject("XY_Plane"), [""])
sketch4.MapMode = "FlatFace"
sketch4.addGeometry(Part.Circle(V(15, 15, 0), V(0, 0, 1), 2.5), False)
sketch4.addConstraint(Sketcher.Constraint("Diameter", 0, Q("5 mm")))
sketch4.addConstraint(Sketcher.Constraint("DistanceX", -1, 1, 0, 3, Q("15 mm")))
sketch4.addConstraint(Sketcher.Constraint("DistanceY", -1, 1, 0, 3, Q("15 mm")))
sketch4.setExpression("Constraints[0]", "Params.sketch4_diameter")
doc.recompute()
hole3 = body.newObject("PartDesign::Hole", "Hole002")
hole3.Profile = sketch4
hole3.ThreadType = "None"
hole3.setExpression("Diameter", "Params.hole3_diameter")
hole3.DepthType = "Dimension"
hole3.setExpression("Depth", "Params.hole3_depth")
hole3.DrillPoint = "Flat"

# Sketch on XY plane
sketch5 = body.newObject("Sketcher::SketchObject", "Sketch004")
sketch5.AttachmentSupport = (doc.getObject("XY_Plane"), [""])
sketch5.MapMode = "FlatFace"
sketch5.addGeometry(Part.Circle(V(-15, 15, 0), V(0, 0, 1), 2.5), False)
sketch5.addConstraint(Sketcher.Constraint("Diameter", 0, Q("5 mm")))
sketch5.addConstraint(Sketcher.Constraint("DistanceX", 0, 3, -1, 1, Q("15 mm")))
sketch5.addConstraint(Sketcher.Constraint("DistanceY", -1, 1, 0, 3, Q("15 mm")))
sketch5.setExpression("Constraints[0]", "Params.sketch5_diameter")
doc.recompute()
hole4 = body.newObject("PartDesign::Hole", "Hole003")
hole4.Profile = sketch5
hole4.ThreadType = "None"
hole4.setExpression("Diameter", "Params.hole4_diameter")
hole4.DepthType = "Dimension"
hole4.setExpression("Depth", "Params.hole4_depth")
hole4.DrillPoint = "Flat"

doc.recompute()
